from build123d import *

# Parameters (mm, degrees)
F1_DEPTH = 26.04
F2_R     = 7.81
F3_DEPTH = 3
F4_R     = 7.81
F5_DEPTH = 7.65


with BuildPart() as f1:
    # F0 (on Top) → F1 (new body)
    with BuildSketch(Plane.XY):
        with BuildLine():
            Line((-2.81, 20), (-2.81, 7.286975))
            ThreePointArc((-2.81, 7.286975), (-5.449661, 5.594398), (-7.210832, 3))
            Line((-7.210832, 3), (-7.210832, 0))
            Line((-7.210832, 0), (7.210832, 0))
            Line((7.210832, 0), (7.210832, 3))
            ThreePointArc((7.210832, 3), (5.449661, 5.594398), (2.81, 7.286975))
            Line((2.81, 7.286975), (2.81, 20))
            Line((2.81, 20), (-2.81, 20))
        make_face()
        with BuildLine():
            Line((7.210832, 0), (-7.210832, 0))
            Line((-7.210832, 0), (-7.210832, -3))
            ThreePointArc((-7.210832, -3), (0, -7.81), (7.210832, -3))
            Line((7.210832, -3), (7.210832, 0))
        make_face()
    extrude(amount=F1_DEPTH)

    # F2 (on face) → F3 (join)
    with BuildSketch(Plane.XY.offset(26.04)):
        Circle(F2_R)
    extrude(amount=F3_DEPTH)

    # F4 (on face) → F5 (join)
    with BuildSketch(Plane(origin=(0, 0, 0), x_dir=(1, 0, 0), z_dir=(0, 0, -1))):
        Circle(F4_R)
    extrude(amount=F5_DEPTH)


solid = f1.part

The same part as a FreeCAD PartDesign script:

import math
import FreeCAD as App
import Part
import Sketcher

V = App.Vector

doc = App.newDocument("Part")
params = doc.addObject("Spreadsheet::Sheet", "Params")
for row, (alias, value) in enumerate([
    ("sketch1_height", "6 mm"),
    ("sketch1_radius", "7.81 mm"),
    ("sketch1_width", "5.62 mm"),
    ("pad1_length", "26.04 mm"),
    ("sketch2_diameter", "15.62 mm"),
    ("pad2_length", "3 mm"),
    ("sketch3_diameter", "15.62 mm"),
    ("pad3_length", "7.65 mm"),
], start=1):
    params.set(f"A{row}", alias)
    params.set(f"B{row}", "=" + value)
    params.setAlias(f"B{row}", alias)

body = doc.addObject("PartDesign::Body", "Body")

# Sketch on XY plane
sketch1 = doc.addObject("Sketcher::SketchObject", "Sketch")
body.addObject(sketch1)
sketch1.AttachmentSupport = (doc.XY_Plane, [""])
sketch1.MapMode = "FlatFace"
sketch1.addGeometry(Part.LineSegment(V(-3, 20, 0), V(-3, 7, 0)), False)
sketch1.addGeometry(Part.ArcOfCircle(Part.Circle(V(0, 0, 0), V(0, 0, 1), 8), math.radians(111), math.radians(157)), False)
sketch1.addGeometry(Part.LineSegment(V(-7, 3, 0), V(-7, -3, 0)), False)
sketch1.addGeometry(Part.ArcOfCircle(Part.Circle(V(0, 0, 0), V(0, 0, 1), 8), math.radians(-157), math.radians(-23)), False)
sketch1.addGeometry(Part.LineSegment(V(7, -3, 0), V(7, 3, 0)), False)
sketch1.addGeometry(Part.ArcOfCircle(Part.Circle(V(0, 0, 0), V(0, 0, 1), 8), math.radians(23), math.radians(69)), False)
sketch1.addGeometry(Part.LineSegment(V(3, 7, 0), V(3, 20, 0)), False)
sketch1.addGeometry(Part.LineSegment(V(3, 20, 0), V(-3, 20, 0)), False)
sketch1.addConstraint(Sketcher.Constraint("Coincident", 0, 2, 1, 1))
sketch1.addConstraint(Sketcher.Constraint("Coincident", 1, 2, 2, 1))
sketch1.addConstraint(Sketcher.Constraint("Coincident", 2, 2, 3, 1))
sketch1.addConstraint(Sketcher.Constraint("Coincident", 3, 2, 4, 1))
sketch1.addConstraint(Sketcher.Constraint("Coincident", 4, 2, 5, 1))
sketch1.addConstraint(Sketcher.Constraint("Coincident", 5, 2, 6, 1))
sketch1.addConstraint(Sketcher.Constraint("Coincident", 6, 2, 7, 1))
sketch1.addConstraint(Sketcher.Constraint("Coincident", 7, 2, 0, 1))
sketch1.addConstraint(Sketcher.Constraint("Vertical", 0))
sketch1.addConstraint(Sketcher.Constraint("Vertical", 2))
sketch1.addConstraint(Sketcher.Constraint("Vertical", 4))
sketch1.addConstraint(Sketcher.Constraint("Vertical", 6))
sketch1.addConstraint(Sketcher.Constraint("Horizontal", 7))
sketch1.addConstraint(Sketcher.Constraint("Coincident", 1, 3, -1, 1))
sketch1.addConstraint(Sketcher.Constraint("Coincident", 3, 3, -1, 1))
sketch1.addConstraint(Sketcher.Constraint("Coincident", 5, 3, -1, 1))
sketch1.addConstraint(Sketcher.Constraint("Equal", 1, 5))
sketch1.addConstraint(Sketcher.Constraint("Symmetric", 1, 2, 3, 2, -1, 1))
sketch1.addConstraint(Sketcher.Constraint("Horizontal", 0, 2, 5, 2))
sketch1.addConstraint(Sketcher.Constraint("DistanceY", 2, 2, 2, 1, 6.0))
sketch1.addConstraint(Sketcher.Constraint("Radius", 3, 7.81))
sketch1.addConstraint(Sketcher.Constraint("DistanceY", -1, 1, 6, 2, 20.0))
sketch1.addConstraint(Sketcher.Constraint("DistanceX", 7, 2, 7, 1, 5.62))
sketch1.setExpression("Constraints[19]", "Params.sketch1_height")
sketch1.setExpression("Constraints[20]", "Params.sketch1_radius")
sketch1.setExpression("Constraints[22]", "Params.sketch1_width")
pad1 = doc.addObject("PartDesign::Pad", "Pad")
body.addObject(pad1)
pad1.Profile = sketch1
pad1.setExpression("Length", "Params.pad1_length")

# Sketch on XY plane
sketch2 = doc.addObject("Sketcher::SketchObject", "Sketch001")
body.addObject(sketch2)
sketch2.AttachmentSupport = (doc.XY_Plane, [""])
sketch2.MapMode = "FlatFace"
sketch2.AttachmentOffset = App.Placement(V(0, 0, 26.04), App.Rotation())
sketch2.addGeometry(Part.Circle(V(0, 0, 0), V(0, 0, 1), 8), False)
sketch2.addConstraint(Sketcher.Constraint("Coincident", 0, 3, -1, 1))
sketch2.addConstraint(Sketcher.Constraint("Diameter", 0, 15.62))
sketch2.setExpression("Constraints[1]", "Params.sketch2_diameter")
pad2 = doc.addObject("PartDesign::Pad", "Pad001")
body.addObject(pad2)
pad2.Profile = sketch2
pad2.setExpression("Length", "Params.pad2_length")

# Sketch on XY plane
sketch3 = doc.addObject("Sketcher::SketchObject", "Sketch002")
body.addObject(sketch3)
sketch3.AttachmentSupport = (doc.XY_Plane, [""])
sketch3.MapMode = "FlatFace"
sketch3.addGeometry(Part.Circle(V(0, 0, 0), V(0, 0, 1), 8), False)
sketch3.addConstraint(Sketcher.Constraint("Coincident", 0, 3, -1, 1))
sketch3.addConstraint(Sketcher.Constraint("Diameter", 0, 15.62))
sketch3.setExpression("Constraints[1]", "Params.sketch3_diameter")
pad3 = doc.addObject("PartDesign::Pad", "Pad002")
body.addObject(pad3)
pad3.Profile = sketch3
pad3.setExpression("Length", "Params.pad3_length")
pad3.Reversed = True

doc.recompute()
